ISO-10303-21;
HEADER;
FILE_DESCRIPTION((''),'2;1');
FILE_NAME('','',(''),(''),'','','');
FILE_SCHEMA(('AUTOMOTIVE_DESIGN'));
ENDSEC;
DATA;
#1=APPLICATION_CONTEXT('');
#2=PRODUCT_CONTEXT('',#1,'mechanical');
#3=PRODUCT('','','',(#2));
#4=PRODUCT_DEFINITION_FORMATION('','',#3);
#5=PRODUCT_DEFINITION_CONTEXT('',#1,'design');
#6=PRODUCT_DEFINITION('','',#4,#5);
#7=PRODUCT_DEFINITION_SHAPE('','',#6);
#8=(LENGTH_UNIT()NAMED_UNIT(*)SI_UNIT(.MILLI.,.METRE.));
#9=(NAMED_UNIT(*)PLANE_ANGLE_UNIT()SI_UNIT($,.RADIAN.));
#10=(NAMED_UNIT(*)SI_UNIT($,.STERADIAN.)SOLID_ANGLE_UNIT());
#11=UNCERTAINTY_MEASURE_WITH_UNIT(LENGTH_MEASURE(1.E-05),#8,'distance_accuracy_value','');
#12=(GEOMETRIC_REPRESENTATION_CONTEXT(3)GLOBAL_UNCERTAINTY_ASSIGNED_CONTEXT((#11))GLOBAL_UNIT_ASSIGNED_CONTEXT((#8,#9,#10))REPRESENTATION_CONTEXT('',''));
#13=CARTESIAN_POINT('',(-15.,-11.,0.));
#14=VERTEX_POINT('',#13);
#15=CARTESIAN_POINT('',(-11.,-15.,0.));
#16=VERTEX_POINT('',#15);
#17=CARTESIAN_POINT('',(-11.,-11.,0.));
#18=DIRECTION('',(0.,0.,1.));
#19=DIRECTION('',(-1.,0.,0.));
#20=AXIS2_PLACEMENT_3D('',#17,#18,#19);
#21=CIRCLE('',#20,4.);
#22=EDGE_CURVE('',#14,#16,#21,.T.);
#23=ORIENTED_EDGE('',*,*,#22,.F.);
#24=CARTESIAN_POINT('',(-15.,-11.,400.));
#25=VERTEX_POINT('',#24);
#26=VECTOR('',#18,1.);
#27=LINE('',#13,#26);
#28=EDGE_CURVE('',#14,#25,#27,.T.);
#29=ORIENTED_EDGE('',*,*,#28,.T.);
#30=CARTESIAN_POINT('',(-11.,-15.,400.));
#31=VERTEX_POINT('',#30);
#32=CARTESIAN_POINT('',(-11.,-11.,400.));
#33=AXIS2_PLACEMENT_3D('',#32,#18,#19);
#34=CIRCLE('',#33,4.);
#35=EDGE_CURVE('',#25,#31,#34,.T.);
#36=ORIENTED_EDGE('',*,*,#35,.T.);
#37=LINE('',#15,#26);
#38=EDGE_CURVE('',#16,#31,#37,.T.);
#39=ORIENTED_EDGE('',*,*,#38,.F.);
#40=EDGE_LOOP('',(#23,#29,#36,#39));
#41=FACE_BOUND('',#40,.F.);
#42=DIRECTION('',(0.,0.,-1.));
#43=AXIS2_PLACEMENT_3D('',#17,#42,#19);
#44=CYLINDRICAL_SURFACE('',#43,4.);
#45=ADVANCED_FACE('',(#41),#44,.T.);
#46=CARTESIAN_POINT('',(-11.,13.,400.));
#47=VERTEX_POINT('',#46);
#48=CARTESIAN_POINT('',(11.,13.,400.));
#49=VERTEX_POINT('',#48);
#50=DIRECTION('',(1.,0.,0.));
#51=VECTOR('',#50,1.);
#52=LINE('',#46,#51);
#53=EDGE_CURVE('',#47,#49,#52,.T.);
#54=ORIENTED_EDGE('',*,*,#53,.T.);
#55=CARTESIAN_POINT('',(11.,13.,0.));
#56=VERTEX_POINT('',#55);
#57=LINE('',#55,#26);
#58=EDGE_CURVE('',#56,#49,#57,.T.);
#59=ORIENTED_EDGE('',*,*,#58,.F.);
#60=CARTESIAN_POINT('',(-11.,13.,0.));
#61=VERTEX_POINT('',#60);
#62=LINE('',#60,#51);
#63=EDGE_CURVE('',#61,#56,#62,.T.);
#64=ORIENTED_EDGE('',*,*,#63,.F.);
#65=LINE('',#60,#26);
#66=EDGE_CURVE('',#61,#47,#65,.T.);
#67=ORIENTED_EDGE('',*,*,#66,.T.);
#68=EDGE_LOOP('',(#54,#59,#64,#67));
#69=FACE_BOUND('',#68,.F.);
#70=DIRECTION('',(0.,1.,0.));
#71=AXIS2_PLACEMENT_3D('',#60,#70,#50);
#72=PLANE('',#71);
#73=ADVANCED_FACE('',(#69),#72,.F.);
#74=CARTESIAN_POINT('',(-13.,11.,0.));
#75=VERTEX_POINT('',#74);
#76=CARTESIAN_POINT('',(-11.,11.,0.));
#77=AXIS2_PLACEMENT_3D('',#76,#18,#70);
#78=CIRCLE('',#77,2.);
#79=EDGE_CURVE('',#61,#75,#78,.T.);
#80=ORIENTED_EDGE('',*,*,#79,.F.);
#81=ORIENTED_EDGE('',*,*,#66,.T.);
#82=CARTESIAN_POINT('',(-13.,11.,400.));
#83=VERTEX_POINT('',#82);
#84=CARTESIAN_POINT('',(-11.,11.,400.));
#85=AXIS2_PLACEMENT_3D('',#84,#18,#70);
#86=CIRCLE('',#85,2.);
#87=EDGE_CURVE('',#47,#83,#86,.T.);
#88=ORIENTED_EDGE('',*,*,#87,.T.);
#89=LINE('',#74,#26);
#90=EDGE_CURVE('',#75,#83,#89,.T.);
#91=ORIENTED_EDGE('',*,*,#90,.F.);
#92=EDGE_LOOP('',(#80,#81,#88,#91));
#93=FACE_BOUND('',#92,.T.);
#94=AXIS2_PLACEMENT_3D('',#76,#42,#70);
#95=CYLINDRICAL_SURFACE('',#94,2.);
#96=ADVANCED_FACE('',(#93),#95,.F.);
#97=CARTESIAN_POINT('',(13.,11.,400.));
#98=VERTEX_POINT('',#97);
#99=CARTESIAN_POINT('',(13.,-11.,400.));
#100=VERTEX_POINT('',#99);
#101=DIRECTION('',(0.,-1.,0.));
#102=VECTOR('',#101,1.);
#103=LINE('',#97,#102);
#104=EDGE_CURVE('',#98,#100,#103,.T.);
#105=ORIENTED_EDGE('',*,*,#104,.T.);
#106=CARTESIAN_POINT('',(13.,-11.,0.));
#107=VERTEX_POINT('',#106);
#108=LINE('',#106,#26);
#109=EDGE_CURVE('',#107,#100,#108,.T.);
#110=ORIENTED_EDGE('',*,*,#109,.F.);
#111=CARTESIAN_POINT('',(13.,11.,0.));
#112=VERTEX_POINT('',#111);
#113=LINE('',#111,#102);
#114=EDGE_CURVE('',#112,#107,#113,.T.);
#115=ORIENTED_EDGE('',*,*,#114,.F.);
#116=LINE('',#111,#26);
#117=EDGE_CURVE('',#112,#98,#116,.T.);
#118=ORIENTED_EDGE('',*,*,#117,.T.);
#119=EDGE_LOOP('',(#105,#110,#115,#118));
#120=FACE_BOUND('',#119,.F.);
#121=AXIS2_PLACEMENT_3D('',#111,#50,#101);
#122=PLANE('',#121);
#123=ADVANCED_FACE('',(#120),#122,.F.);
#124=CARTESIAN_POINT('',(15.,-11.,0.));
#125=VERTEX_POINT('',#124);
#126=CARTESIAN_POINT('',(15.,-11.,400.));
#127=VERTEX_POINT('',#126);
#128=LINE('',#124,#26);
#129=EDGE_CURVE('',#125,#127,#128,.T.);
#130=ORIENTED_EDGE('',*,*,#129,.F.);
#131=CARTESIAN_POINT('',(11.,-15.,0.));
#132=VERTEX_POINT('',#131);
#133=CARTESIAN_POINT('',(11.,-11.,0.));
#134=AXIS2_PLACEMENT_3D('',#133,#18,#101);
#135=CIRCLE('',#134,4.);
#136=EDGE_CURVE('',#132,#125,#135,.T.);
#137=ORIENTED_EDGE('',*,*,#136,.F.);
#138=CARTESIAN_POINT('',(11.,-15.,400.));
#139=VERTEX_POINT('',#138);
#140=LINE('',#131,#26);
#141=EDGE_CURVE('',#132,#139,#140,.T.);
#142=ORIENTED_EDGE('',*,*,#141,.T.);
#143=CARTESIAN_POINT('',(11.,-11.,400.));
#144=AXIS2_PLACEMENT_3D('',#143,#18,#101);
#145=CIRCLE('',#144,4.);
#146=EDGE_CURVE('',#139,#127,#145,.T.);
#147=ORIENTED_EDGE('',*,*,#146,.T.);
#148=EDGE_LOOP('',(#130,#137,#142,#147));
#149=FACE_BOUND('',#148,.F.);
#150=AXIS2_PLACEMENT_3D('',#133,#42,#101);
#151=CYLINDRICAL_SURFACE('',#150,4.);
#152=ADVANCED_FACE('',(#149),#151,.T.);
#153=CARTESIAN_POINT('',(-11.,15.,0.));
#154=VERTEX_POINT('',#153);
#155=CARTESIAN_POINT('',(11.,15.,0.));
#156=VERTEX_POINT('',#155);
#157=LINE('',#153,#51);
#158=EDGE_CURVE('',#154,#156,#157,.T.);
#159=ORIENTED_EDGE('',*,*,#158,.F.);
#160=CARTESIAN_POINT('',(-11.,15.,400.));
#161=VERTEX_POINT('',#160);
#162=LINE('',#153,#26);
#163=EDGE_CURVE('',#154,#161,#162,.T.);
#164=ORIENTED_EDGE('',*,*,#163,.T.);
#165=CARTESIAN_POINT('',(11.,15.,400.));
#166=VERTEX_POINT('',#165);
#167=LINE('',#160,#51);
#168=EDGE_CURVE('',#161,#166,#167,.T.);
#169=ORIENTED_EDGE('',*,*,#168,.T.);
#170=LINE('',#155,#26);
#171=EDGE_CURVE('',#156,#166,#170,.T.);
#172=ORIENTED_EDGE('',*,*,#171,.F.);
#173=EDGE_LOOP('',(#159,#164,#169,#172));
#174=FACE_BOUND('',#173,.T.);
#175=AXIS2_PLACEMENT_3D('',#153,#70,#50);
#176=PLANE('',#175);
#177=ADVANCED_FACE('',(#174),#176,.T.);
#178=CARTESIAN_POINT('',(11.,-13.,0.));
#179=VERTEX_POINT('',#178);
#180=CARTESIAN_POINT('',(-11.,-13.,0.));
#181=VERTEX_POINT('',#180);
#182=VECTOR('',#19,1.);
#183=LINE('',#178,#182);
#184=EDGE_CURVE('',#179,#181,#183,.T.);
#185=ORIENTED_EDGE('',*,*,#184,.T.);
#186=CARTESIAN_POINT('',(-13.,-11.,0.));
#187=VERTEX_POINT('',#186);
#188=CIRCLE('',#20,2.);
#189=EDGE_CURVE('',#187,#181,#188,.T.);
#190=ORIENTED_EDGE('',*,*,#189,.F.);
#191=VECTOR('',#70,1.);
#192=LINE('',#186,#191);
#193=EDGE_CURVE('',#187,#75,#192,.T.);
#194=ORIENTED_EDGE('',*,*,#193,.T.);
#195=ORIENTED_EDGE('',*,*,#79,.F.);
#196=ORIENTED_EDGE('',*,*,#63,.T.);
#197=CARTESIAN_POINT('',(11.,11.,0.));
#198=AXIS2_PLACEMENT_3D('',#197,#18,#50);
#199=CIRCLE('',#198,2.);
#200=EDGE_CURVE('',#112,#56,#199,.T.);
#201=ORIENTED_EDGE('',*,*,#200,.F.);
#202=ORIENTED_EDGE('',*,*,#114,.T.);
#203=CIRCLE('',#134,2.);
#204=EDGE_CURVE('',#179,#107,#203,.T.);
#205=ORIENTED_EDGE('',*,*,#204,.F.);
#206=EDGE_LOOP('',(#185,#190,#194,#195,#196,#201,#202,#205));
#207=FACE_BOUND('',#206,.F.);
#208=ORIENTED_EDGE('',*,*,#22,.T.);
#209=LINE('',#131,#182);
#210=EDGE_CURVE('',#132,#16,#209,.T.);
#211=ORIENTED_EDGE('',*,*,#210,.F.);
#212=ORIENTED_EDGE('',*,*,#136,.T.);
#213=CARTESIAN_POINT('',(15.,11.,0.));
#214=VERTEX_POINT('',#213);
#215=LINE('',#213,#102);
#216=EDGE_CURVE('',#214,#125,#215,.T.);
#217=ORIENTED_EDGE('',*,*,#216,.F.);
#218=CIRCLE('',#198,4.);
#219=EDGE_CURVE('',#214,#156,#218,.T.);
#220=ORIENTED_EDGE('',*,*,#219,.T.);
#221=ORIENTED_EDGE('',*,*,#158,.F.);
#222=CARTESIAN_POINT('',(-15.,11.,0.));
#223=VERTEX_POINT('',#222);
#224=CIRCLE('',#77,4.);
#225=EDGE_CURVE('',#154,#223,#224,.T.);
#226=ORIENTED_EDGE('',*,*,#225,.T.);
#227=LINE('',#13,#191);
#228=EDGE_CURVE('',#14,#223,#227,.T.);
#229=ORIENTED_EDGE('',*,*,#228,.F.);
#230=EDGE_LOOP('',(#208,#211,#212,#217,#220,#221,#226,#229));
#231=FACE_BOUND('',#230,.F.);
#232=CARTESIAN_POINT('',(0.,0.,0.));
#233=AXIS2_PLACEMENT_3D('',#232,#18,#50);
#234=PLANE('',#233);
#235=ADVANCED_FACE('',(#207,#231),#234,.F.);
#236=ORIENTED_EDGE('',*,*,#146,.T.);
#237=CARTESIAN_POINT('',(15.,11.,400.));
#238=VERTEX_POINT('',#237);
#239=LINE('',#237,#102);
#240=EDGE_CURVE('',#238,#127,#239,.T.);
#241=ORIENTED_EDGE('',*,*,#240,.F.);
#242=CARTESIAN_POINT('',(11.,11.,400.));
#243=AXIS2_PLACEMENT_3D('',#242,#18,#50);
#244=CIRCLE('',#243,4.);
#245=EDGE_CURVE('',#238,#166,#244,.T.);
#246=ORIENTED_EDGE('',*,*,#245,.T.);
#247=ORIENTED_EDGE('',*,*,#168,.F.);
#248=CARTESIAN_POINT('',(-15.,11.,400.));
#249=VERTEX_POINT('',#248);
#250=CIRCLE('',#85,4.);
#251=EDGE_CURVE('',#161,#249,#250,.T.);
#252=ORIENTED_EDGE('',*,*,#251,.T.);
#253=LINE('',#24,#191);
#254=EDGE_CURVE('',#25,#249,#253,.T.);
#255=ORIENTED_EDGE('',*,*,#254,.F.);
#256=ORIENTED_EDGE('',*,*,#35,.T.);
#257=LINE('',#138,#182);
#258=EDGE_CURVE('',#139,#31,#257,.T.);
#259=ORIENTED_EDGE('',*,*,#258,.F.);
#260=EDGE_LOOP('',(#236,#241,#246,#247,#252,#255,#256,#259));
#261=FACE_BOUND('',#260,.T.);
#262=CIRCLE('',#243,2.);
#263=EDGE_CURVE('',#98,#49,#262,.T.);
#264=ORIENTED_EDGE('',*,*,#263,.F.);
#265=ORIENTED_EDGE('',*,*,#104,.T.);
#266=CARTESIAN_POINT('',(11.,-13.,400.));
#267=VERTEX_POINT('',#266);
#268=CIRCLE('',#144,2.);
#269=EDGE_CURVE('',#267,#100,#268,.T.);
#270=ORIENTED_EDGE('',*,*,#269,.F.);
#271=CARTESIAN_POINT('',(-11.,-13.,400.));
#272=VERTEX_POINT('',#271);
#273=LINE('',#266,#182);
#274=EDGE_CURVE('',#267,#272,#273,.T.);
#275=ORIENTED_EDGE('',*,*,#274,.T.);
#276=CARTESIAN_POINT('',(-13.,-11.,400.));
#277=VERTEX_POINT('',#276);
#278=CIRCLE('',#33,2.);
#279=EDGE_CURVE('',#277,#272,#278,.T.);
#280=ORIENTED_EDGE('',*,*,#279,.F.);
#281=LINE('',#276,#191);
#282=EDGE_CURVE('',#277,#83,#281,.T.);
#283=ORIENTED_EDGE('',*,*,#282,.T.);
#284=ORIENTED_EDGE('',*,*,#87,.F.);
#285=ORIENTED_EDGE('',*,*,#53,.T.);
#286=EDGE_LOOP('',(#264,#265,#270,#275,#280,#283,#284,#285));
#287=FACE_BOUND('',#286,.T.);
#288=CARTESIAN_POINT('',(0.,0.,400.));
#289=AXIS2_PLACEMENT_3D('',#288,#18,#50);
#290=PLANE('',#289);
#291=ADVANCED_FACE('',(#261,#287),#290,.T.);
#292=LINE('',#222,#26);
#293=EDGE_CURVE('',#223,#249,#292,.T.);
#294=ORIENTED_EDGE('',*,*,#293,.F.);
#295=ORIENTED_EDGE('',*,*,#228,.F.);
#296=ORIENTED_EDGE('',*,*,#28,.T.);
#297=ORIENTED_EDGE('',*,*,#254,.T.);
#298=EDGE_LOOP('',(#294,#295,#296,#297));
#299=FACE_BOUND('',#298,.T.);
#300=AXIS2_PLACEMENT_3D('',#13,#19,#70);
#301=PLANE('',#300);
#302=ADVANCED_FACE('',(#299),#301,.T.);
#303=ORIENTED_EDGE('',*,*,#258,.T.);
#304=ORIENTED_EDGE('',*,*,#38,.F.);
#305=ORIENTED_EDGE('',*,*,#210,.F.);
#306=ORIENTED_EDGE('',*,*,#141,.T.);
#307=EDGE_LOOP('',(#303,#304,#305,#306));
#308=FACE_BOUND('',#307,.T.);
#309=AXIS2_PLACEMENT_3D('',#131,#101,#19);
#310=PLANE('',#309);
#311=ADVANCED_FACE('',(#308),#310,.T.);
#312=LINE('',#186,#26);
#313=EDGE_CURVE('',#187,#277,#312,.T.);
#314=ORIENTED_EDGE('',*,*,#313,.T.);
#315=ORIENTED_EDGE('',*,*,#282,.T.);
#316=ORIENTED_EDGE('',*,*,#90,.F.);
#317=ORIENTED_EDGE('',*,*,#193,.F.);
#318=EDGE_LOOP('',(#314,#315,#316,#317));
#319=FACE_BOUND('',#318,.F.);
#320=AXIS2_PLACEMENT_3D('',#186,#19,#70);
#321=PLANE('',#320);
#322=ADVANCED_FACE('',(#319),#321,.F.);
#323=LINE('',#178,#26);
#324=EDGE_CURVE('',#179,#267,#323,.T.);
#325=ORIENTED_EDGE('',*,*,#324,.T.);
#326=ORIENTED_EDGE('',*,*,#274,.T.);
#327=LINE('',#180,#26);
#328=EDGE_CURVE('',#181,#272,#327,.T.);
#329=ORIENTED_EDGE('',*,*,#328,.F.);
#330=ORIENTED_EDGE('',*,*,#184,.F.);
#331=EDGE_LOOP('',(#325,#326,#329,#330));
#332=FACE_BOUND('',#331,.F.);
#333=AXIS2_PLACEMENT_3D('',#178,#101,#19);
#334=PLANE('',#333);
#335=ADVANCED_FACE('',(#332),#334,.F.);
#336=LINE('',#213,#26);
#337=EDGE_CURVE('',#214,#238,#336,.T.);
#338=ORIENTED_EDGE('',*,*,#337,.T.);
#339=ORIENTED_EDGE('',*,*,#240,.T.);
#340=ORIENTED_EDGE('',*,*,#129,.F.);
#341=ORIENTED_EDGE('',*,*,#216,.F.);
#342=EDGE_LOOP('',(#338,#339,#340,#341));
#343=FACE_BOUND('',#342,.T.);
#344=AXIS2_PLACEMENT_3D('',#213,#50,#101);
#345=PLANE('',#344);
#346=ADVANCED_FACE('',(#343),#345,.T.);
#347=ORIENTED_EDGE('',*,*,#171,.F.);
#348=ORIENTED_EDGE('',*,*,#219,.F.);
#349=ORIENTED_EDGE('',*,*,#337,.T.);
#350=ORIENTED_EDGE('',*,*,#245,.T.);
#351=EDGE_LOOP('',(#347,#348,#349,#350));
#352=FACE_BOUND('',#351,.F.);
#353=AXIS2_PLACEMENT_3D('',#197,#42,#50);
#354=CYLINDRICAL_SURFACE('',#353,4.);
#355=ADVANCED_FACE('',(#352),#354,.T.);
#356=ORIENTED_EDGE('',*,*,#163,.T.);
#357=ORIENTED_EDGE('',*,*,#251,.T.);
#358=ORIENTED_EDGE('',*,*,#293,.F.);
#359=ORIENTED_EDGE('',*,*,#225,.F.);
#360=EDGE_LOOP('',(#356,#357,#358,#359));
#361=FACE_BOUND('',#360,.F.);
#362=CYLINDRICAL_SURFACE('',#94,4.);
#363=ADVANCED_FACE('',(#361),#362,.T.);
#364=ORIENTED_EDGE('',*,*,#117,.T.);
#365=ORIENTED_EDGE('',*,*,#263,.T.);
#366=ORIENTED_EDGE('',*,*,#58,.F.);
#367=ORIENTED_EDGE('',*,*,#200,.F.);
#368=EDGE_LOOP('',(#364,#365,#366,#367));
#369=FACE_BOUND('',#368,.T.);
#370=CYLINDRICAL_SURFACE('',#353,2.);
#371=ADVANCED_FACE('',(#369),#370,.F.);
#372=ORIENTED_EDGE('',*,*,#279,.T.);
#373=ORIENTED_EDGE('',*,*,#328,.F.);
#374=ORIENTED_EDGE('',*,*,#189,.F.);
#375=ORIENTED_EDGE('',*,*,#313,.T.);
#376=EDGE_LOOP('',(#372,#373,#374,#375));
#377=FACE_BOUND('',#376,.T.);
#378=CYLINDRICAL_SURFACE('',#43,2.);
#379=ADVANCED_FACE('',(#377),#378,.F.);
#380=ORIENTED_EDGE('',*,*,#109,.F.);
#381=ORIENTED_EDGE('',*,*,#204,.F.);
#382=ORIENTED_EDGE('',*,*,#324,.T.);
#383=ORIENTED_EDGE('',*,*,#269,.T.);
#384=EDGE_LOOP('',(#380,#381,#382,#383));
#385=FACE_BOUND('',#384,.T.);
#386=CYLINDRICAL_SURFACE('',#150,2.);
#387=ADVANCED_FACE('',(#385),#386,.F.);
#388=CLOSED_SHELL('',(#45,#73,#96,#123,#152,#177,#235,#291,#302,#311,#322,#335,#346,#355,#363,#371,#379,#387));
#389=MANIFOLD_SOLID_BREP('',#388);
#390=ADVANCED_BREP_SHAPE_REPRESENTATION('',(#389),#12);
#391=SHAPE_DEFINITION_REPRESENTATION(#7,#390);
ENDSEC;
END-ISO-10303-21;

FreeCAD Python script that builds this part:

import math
import FreeCAD as App
import Part
import Sketcher
Q = App.Units.Quantity

doc = App.newDocument("Part")
body = doc.addObject("PartDesign::Body", "Body")

# Sketch on XY plane
sketch1 = doc.addObject("Sketcher::SketchObject", "Sketch")
body.addObject(sketch1)
sketch1.AttachmentSupport = (doc.XY_Plane, [""])
sketch1.MapMode = "FlatFace"
sketch1.addGeometry(Part.LineSegment(App.Vector(-15, 11, 0), App.Vector(-15, -11, 0)), False)
sketch1.addGeometry(Part.ArcOfCircle(Part.Circle(App.Vector(-11, -11, 0), App.Vector(0, 0, 1), 4), math.radians(180), math.radians(270)), False)
sketch1.addGeometry(Part.LineSegment(App.Vector(-11, -15, 0), App.Vector(11, -15, 0)), False)
sketch1.addGeometry(Part.ArcOfCircle(Part.Circle(App.Vector(11, -11, 0), App.Vector(0, 0, 1), 4), math.radians(-90), math.radians(0)), False)
sketch1.addGeometry(Part.LineSegment(App.Vector(15, -11, 0), App.Vector(15, 11, 0)), False)
sketch1.addGeometry(Part.ArcOfCircle(Part.Circle(App.Vector(11, 11, 0), App.Vector(0, 0, 1), 4), math.radians(0), math.radians(90)), False)
sketch1.addGeometry(Part.LineSegment(App.Vector(11, 15, 0), App.Vector(-11, 15, 0)), False)
sketch1.addGeometry(Part.ArcOfCircle(Part.Circle(App.Vector(-11, 11, 0), App.Vector(0, 0, 1), 4), math.radians(90), math.radians(180)), False)
sketch1.addGeometry(Part.ArcOfCircle(Part.Circle(App.Vector(-11, 11, 0), App.Vector(0, 0, 1), 2), math.radians(90), math.radians(180)), False)
sketch1.addGeometry(Part.LineSegment(App.Vector(-11, 13, 0), App.Vector(11, 13, 0)), False)
sketch1.addGeometry(Part.ArcOfCircle(Part.Circle(App.Vector(11, 11, 0), App.Vector(0, 0, 1), 2), math.radians(0), math.radians(90)), False)
sketch1.addGeometry(Part.LineSegment(App.Vector(13, 11, 0), App.Vector(13, -11, 0)), False)
sketch1.addGeometry(Part.ArcOfCircle(Part.Circle(App.Vector(11, -11, 0), App.Vector(0, 0, 1), 2), math.radians(-90), math.radians(0)), False)
sketch1.addGeometry(Part.LineSegment(App.Vector(11, -13, 0), App.Vector(-11, -13, 0)), False)
sketch1.addGeometry(Part.ArcOfCircle(Part.Circle(App.Vector(-11, -11, 0), App.Vector(0, 0, 1), 2), math.radians(180), math.radians(270)), False)
sketch1.addGeometry(Part.LineSegment(App.Vector(-13, -11, 0), App.Vector(-13, 11, 0)), False)
sketch1.addConstraint(Sketcher.Constraint("Tangent", 0, 2, 1, 1))
sketch1.addConstraint(Sketcher.Constraint("Tangent", 1, 2, 2, 1))
sketch1.addConstraint(Sketcher.Constraint("Tangent", 2, 2, 3, 1))
sketch1.addConstraint(Sketcher.Constraint("Tangent", 3, 2, 4, 1))
sketch1.addConstraint(Sketcher.Constraint("Tangent", 4, 2, 5, 1))
sketch1.addConstraint(Sketcher.Constraint("Tangent", 5, 2, 6, 1))
sketch1.addConstraint(Sketcher.Constraint("Tangent", 6, 2, 7, 1))
sketch1.addConstraint(Sketcher.Constraint("Tangent", 7, 2, 0, 1))
sketch1.addConstraint(Sketcher.Constraint("Tangent", 8, 1, 9, 1))
sketch1.addConstraint(Sketcher.Constraint("Tangent", 9, 2, 10, 2))
sketch1.addConstraint(Sketcher.Constraint("Tangent", 10, 1, 11, 1))
sketch1.addConstraint(Sketcher.Constraint("Tangent", 11, 2, 12, 2))
sketch1.addConstraint(Sketcher.Constraint("Tangent", 12, 1, 13, 1))
sketch1.addConstraint(Sketcher.Constraint("Tangent", 13, 2, 14, 2))
sketch1.addConstraint(Sketcher.Constraint("Tangent", 14, 1, 15, 1))
sketch1.addConstraint(Sketcher.Constraint("Tangent", 15, 2, 8, 2))
sketch1.addConstraint(Sketcher.Constraint("Vertical", 0))
sketch1.addConstraint(Sketcher.Constraint("Horizontal", 2))
sketch1.addConstraint(Sketcher.Constraint("Vertical", 4))
sketch1.addConstraint(Sketcher.Constraint("Horizontal", 6))
sketch1.addConstraint(Sketcher.Constraint("Horizontal", 9))
sketch1.addConstraint(Sketcher.Constraint("Vertical", 11))
sketch1.addConstraint(Sketcher.Constraint("Horizontal", 13))
sketch1.addConstraint(Sketcher.Constraint("Vertical", 15))
sketch1.addConstraint(Sketcher.Constraint("Coincident", 8, 3, 7, 3))
sketch1.addConstraint(Sketcher.Constraint("Coincident", 10, 3, 5, 3))
sketch1.addConstraint(Sketcher.Constraint("Coincident", 12, 3, 3, 3))
sketch1.addConstraint(Sketcher.Constraint("Equal", 1, 3))
sketch1.addConstraint(Sketcher.Constraint("Equal", 3, 5))
sketch1.addConstraint(Sketcher.Constraint("Equal", 5, 7))
sketch1.addConstraint(Sketcher.Constraint("Equal", 12, 14))
sketch1.addConstraint(Sketcher.Constraint("Symmetric", 1, 3, 5, 3, -1, 1))
sketch1.addConstraint(Sketcher.Constraint("Equal", 13, 0))
sketch1.addConstraint(Sketcher.Constraint("Radius", 1, Q("4 mm")))
sketch1.addConstraint(Sketcher.Constraint("Radius", 8, Q("2 mm")))
sketch1.addConstraint(Sketcher.Constraint("DistanceX", 0, 2, -1, 1, Q("15 mm")))
pad1 = doc.addObject("PartDesign::Pad", "Pad")
body.addObject(pad1)
pad1.Profile = sketch1
pad1.Length = 400

doc.recompute()
